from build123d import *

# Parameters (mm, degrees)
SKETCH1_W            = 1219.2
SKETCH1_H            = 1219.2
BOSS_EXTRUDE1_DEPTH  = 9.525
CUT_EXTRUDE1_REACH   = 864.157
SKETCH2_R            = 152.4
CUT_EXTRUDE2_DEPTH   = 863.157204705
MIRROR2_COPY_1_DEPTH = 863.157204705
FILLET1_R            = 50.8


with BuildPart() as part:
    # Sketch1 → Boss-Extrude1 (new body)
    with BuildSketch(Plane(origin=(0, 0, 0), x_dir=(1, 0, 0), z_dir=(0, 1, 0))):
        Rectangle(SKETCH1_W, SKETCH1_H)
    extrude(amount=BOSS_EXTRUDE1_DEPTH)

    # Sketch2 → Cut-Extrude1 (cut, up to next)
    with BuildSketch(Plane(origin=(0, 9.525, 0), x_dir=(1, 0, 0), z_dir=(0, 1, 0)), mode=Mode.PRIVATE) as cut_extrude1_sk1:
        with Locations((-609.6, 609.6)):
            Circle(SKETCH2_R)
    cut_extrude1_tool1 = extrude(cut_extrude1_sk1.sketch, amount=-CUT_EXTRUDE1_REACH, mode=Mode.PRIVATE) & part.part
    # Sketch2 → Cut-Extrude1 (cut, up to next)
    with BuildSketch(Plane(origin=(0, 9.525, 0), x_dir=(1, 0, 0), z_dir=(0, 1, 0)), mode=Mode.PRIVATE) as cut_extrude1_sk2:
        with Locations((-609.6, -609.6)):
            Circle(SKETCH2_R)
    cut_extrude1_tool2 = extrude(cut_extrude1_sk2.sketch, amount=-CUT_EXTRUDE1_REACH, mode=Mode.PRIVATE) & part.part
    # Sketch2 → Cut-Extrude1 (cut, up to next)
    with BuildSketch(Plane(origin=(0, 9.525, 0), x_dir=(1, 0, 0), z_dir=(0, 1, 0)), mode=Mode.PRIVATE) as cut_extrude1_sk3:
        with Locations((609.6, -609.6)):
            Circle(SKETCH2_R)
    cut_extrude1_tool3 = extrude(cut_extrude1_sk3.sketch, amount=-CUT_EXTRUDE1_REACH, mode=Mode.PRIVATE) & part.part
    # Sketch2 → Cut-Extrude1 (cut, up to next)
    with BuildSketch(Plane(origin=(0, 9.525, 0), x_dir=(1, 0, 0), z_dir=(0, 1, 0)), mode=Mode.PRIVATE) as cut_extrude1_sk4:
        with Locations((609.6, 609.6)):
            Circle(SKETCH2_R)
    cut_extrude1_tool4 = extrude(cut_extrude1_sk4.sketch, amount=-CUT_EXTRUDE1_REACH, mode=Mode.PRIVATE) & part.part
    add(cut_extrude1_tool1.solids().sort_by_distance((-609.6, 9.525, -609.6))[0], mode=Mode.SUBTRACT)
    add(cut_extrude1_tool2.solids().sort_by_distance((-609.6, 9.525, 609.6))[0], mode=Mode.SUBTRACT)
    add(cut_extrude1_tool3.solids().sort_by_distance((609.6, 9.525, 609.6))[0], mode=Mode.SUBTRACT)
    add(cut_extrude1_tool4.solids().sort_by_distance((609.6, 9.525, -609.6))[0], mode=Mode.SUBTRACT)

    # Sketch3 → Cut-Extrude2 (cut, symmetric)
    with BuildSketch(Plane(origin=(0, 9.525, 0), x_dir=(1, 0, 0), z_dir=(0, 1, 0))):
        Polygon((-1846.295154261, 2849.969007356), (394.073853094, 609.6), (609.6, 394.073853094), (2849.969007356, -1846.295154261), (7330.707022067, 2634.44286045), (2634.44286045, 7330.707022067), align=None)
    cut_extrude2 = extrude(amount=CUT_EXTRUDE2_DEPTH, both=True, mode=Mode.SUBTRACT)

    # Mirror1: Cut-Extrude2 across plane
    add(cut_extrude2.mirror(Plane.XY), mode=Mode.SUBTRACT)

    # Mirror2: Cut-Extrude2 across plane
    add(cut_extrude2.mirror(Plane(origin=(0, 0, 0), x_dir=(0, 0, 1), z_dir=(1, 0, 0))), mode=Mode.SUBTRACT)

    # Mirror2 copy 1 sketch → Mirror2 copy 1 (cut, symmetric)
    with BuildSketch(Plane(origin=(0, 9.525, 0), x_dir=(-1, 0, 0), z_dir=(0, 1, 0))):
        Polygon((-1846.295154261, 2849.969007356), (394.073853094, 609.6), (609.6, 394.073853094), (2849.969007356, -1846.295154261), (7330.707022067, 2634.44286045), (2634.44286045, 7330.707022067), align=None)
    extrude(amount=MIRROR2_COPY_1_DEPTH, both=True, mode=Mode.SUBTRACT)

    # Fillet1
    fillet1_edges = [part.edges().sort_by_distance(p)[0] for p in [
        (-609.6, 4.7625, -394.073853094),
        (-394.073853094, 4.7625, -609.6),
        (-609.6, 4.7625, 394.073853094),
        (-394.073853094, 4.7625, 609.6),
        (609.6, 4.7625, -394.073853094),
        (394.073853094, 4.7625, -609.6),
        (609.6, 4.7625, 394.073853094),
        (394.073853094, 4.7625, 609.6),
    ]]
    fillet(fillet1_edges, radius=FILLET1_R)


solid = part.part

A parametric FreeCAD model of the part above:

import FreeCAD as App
import Part
import Sketcher

V = App.Vector
Q = App.Units.Quantity


def edges_at(feature, points):
    """Names of the edges that pass closest to the given points."""
    edges = feature.Shape.Edges
    near = lambda p: min(range(len(edges)), key=lambda i: edges[i].distToShape(Part.Vertex(*p))[0])
    return sorted({f"Edge{near(p) + 1}" for p in points})

doc = App.newDocument("Part")
body = doc.addObject("PartDesign::Body", "Body")

# Sketch on XZ plane
sketch1 = body.newObject("Sketcher::SketchObject", "Sketch")
sketch1.AttachmentSupport = (doc.getObject("XZ_Plane"), [""])
sketch1.MapMode = "FlatFace"
sketch1.addGeometry([
    Part.LineSegment(V(-609.6, -609.6, 0), V(-609.6, 609.6, 0)),
    Part.LineSegment(V(-609.6, 609.6, 0), V(609.6, 609.6, 0)),
    Part.LineSegment(V(609.6, 609.6, 0), V(609.6, -609.6, 0)),
    Part.LineSegment(V(609.6, -609.6, 0), V(-609.6, -609.6, 0)),
], False)
sketch1.addConstraint([
    Sketcher.Constraint("Coincident", 0, 2, 1, 1),
    Sketcher.Constraint("Coincident", 1, 2, 2, 1),
    Sketcher.Constraint("Coincident", 2, 2, 3, 1),
    Sketcher.Constraint("Coincident", 3, 2, 0, 1),
    Sketcher.Constraint("Vertical", 0),
    Sketcher.Constraint("Horizontal", 1),
    Sketcher.Constraint("Vertical", 2),
    Sketcher.Constraint("Horizontal", 3),
    Sketcher.Constraint("Symmetric", 0, 2, 2, 2, -1, 1),
    Sketcher.Constraint("Equal", 3, 0),
    Sketcher.Constraint("DistanceX", 1, 1, 1, 2, Q("48 in")),
])
pad1 = body.newObject("PartDesign::Pad", "Pad")
pad1.Profile = sketch1
pad1.Length = Q("0.375 in")
pad1.Reversed = True

# Sketch on XZ plane
sketch2 = body.newObject("Sketcher::SketchObject", "Sketch001")
sketch2.AttachmentSupport = (doc.getObject("XZ_Plane"), [""])
sketch2.MapMode = "FlatFace"
sketch2.AttachmentOffset = App.Placement(V(0, 0, -0.375 * 25.4), App.Rotation())
sketch2.addGeometry(Part.Circle(V(-609.6, -609.6, 0), V(0, 0, 1), 152.4), False)
sketch2.addConstraint([
    Sketcher.Constraint("Diameter", 0, Q("12 in")),
    Sketcher.Constraint("DistanceX", 0, 3, -1, 1, Q("24 in")),
    Sketcher.Constraint("DistanceY", 0, 3, -1, 1, Q("24 in")),
])
pocket1 = body.newObject("PartDesign::Pocket", "Pocket")
pocket1.Profile = sketch2
pocket1.Type = "UpToFirst"
pocket1.Reversed = True

# Sketch on XZ plane
sketch3 = body.newObject("Sketcher::SketchObject", "Sketch002")
sketch3.AttachmentSupport = (doc.getObject("XZ_Plane"), [""])
sketch3.MapMode = "FlatFace"
sketch3.AttachmentOffset = App.Placement(V(0, 0, -0.375 * 25.4), App.Rotation())
sketch3.addGeometry(Part.Circle(V(-609.6, 609.6, 0), V(0, 0, 1), 152.4), False)
sketch3.addConstraint([
    Sketcher.Constraint("Diameter", 0, Q("12 in")),
    Sketcher.Constraint("DistanceX", 0, 3, -1, 1, Q("24 in")),
    Sketcher.Constraint("DistanceY", -1, 1, 0, 3, Q("24 in")),
])
pocket2 = body.newObject("PartDesign::Pocket", "Pocket001")
pocket2.Profile = sketch3
pocket2.Type = "UpToFirst"
pocket2.Reversed = True

# Sketch on XZ plane
sketch4 = body.newObject("Sketcher::SketchObject", "Sketch003")
sketch4.AttachmentSupport = (doc.getObject("XZ_Plane"), [""])
sketch4.MapMode = "FlatFace"
sketch4.AttachmentOffset = App.Placement(V(0, 0, -0.375 * 25.4), App.Rotation())
sketch4.addGeometry(Part.Circle(V(609.6, 609.6, 0), V(0, 0, 1), 152.4), False)
sketch4.addConstraint([
    Sketcher.Constraint("Diameter", 0, Q("12 in")),
    Sketcher.Constraint("DistanceX", -1, 1, 0, 3, Q("24 in")),
    Sketcher.Constraint("DistanceY", -1, 1, 0, 3, Q("24 in")),
])
pocket3 = body.newObject("PartDesign::Pocket", "Pocket002")
pocket3.Profile = sketch4
pocket3.Type = "UpToFirst"
pocket3.Reversed = True

# Sketch on XZ plane
sketch5 = body.newObject("Sketcher::SketchObject", "Sketch004")
sketch5.AttachmentSupport = (doc.getObject("XZ_Plane"), [""])
sketch5.MapMode = "FlatFace"
sketch5.AttachmentOffset = App.Placement(V(0, 0, -0.375 * 25.4), App.Rotation())
sketch5.addGeometry(Part.Circle(V(609.6, -609.6, 0), V(0, 0, 1), 152.4), False)
sketch5.addConstraint([
    Sketcher.Constraint("Diameter", 0, Q("12 in")),
    Sketcher.Constraint("DistanceX", -1, 1, 0, 3, Q("24 in")),
    Sketcher.Constraint("DistanceY", 0, 3, -1, 1, Q("24 in")),
])
pocket4 = body.newObject("PartDesign::Pocket", "Pocket003")
pocket4.Profile = sketch5
pocket4.Type = "UpToFirst"
pocket4.Reversed = True

# Sketch on XZ plane
sketch6 = body.newObject("Sketcher::SketchObject", "Sketch005")
sketch6.AttachmentSupport = (doc.getObject("XZ_Plane"), [""])
sketch6.MapMode = "FlatFace"
sketch6.AttachmentOffset = App.Placement(V(0, 0, -0.375 * 25.4), App.Rotation())
sketch6.addGeometry([
    Part.LineSegment(V(-1846.295154, -2849.969007, 0), V(2849.969007, 1846.295154, 0)),
    Part.LineSegment(V(2849.969007, 1846.295154, 0), V(7330.707022, -2634.44286, 0)),
    Part.LineSegment(V(7330.707022, -2634.44286, 0), V(2634.44286, -7330.707022, 0)),
    Part.LineSegment(V(2634.44286, -7330.707022, 0), V(-1846.295154, -2849.969007, 0)),
], False)
sketch6.addConstraint([
    Sketcher.Constraint("Coincident", 0, 2, 1, 1),
    Sketcher.Constraint("Coincident", 1, 2, 2, 1),
    Sketcher.Constraint("Coincident", 2, 2, 3, 1),
    Sketcher.Constraint("Coincident", 3, 2, 0, 1),
    Sketcher.Constraint("Perpendicular", 0, 1),
    Sketcher.Constraint("Perpendicular", 1, 2),
    Sketcher.Constraint("Perpendicular", 2, 3),
    Sketcher.Constraint("Angle", 0, Q("45 deg")),
    Sketcher.Constraint("Distance", 0, 6641.52047),
    Sketcher.Constraint("Distance", 1, 6336.72047),
    Sketcher.Constraint("DistanceY", 1, 2, -1, 1, 2634.44286),
    Sketcher.Constraint("DistanceX", -1, 1, 2, 2, 2634.44286),
])
pocket5 = body.newObject("PartDesign::Pocket", "Pocket004")
pocket5.Profile = sketch6
pocket5.Length = 1726.314409
pocket5.Midplane = True
doc.recompute()

mirrored = body.newObject("PartDesign::Mirrored", "Mirrored")
mirrored.Originals = [pocket5]
mirrored.MirrorPlane = (doc.getObject("XY_Plane"), [""])
body.Tip = mirrored
doc.recompute()

mirrored2 = body.newObject("PartDesign::Mirrored", "Mirrored001")
mirrored2.Originals = [pocket5]
mirrored2.MirrorPlane = (doc.getObject("YZ_Plane"), [""])
body.Tip = mirrored2

# Sketch on XZ plane
sketch7 = body.newObject("Sketcher::SketchObject", "Sketch006")
sketch7.AttachmentSupport = (doc.getObject("XZ_Plane"), [""])
sketch7.MapMode = "FlatFace"
sketch7.AttachmentOffset = App.Placement(V(0, 0, -0.375 * 25.4), App.Rotation())
sketch7.addGeometry([
    Part.LineSegment(V(1846.295154, 2849.969007, 0), V(-2849.969007, -1846.295154, 0)),
    Part.LineSegment(V(-2849.969007, -1846.295154, 0), V(-7330.707022, 2634.44286, 0)),
    Part.LineSegment(V(-7330.707022, 2634.44286, 0), V(-2634.44286, 7330.707022, 0)),
    Part.LineSegment(V(-2634.44286, 7330.707022, 0), V(1846.295154, 2849.969007, 0)),
], False)
sketch7.addConstraint([
    Sketcher.Constraint("Coincident", 0, 2, 1, 1),
    Sketcher.Constraint("Coincident", 1, 2, 2, 1),
    Sketcher.Constraint("Coincident", 2, 2, 3, 1),
    Sketcher.Constraint("Coincident", 3, 2, 0, 1),
    Sketcher.Constraint("Perpendicular", 0, 1),
    Sketcher.Constraint("Perpendicular", 1, 2),
    Sketcher.Constraint("Perpendicular", 2, 3),
    Sketcher.Constraint("Angle", 0, Q("-135 deg")),
    Sketcher.Constraint("Distance", 0, 6641.52047),
    Sketcher.Constraint("Distance", 1, 6336.72047),
    Sketcher.Constraint("DistanceY", -1, 1, 1, 2, 2634.44286),
    Sketcher.Constraint("DistanceX", 2, 2, -1, 1, 2634.44286),
])
pocket6 = body.newObject("PartDesign::Pocket", "Pocket005")
pocket6.Profile = sketch7
pocket6.Length = 1726.314409
pocket6.Midplane = True
doc.recompute()

fillet = body.newObject("PartDesign::Fillet", "Fillet")
fillet.Base = (pocket6, edges_at(pocket6, [
    (-609.6, 4.763, -394.074),
    (-394.074, 4.763, -609.6),
    (-609.6, 4.763, 394.074),
    (-394.074, 4.763, 609.6),
    (609.6, 4.763, -394.074),
    (394.074, 4.763, -609.6),
    (609.6, 4.763, 394.074),
    (394.074, 4.763, 609.6),
]))
fillet.Radius = Q("2 in")

doc.recompute()
